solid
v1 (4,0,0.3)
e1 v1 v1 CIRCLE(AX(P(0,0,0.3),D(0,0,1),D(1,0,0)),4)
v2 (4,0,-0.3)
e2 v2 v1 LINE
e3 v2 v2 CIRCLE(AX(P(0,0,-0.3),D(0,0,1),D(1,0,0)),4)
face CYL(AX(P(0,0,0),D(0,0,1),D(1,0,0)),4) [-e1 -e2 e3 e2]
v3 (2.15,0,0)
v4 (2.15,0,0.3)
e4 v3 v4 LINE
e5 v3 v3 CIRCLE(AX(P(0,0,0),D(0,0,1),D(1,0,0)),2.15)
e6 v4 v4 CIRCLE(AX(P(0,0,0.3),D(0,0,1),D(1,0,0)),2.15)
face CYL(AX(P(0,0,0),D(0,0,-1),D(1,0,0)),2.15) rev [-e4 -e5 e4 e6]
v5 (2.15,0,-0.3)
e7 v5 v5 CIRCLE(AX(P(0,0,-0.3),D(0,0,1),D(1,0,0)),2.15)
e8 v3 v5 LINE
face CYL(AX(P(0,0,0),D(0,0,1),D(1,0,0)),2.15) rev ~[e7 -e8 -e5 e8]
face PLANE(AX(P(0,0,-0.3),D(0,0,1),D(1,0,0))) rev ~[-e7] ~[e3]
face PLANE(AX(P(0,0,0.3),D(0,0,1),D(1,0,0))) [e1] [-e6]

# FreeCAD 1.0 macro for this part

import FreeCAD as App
import Part
import Sketcher
Q = App.Units.Quantity

doc = App.newDocument("Part")
body = doc.addObject("PartDesign::Body", "Body")

# Sketch on XY plane
sketch1 = body.newObject("Sketcher::SketchObject", "Sketch")
sketch1.AttachmentSupport = (doc.getObject("XY_Plane"), [""])
sketch1.MapMode = "FlatFace"
sketch1.addGeometry(Part.Circle(App.Vector(0, 0, 0), App.Vector(0, 0, 1), 4), False)
sketch1.addGeometry(Part.Circle(App.Vector(0, 0, 0), App.Vector(0, 0, 1), 2.1), False)
sketch1.addConstraint(Sketcher.Constraint("Coincident", 0, 3, -1, 1))
sketch1.addConstraint(Sketcher.Constraint("Coincident", 1, 3, -1, 1))
sketch1.addConstraint(Sketcher.Constraint("Diameter", 0, Q("8 mm")))
sketch1.addConstraint(Sketcher.Constraint("Diameter", 1, Q("4.3 mm")))
pad1 = body.newObject("PartDesign::Pad", "Pad")
pad1.Profile = sketch1
pad1.Type = "TwoLengths"
pad1.Length = 0.3
pad1.Length2 = 0.3

doc.recompute()
